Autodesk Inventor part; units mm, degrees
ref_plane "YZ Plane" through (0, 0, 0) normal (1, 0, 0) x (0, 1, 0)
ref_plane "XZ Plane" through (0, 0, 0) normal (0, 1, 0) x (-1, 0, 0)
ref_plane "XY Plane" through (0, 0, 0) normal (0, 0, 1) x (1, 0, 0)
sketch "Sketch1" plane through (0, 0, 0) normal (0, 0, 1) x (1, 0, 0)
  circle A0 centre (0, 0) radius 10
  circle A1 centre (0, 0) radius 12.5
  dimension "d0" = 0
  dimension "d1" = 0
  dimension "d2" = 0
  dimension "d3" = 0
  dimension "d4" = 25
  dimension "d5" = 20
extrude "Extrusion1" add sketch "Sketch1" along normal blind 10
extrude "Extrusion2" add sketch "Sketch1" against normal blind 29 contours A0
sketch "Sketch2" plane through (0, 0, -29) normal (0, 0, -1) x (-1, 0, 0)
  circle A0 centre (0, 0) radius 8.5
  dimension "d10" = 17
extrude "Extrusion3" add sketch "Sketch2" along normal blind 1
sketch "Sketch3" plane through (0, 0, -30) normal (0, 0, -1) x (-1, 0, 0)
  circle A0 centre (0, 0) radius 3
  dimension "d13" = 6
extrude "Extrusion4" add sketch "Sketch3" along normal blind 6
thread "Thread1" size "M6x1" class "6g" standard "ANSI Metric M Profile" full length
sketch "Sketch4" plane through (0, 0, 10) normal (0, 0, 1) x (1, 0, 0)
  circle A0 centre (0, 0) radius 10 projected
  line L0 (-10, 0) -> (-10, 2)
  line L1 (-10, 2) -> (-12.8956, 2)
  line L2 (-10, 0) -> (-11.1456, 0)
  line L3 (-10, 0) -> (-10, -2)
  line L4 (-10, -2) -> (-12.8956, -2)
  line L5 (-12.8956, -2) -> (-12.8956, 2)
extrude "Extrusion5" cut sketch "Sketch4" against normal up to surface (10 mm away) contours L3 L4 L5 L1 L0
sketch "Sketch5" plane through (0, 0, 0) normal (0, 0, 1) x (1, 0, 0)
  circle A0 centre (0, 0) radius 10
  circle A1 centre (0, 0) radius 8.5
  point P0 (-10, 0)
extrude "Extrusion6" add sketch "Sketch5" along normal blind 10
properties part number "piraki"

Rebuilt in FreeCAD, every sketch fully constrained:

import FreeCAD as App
import Part
import Sketcher

V = App.Vector
Q = App.Units.Quantity


def add_polygon(sketch, points):
    """Adds a closed chain of lines whose ends are joined by coincident constraints."""
    first, n = sketch.GeometryCount, len(points)
    for a, b in zip(points, points[1:] + points[:1]):
        sketch.addGeometry(Part.LineSegment(App.Vector(*a, 0), App.Vector(*b, 0)), False)
    for i in range(n):
        sketch.addConstraint(Sketcher.Constraint("Coincident", first + i, 2, first + (i + 1) % n, 1))

doc = App.newDocument("Part")
body = doc.addObject("PartDesign::Body", "Body")
body.AllowCompound = True

# Sketch on XY plane
sketch1 = body.newObject("Sketcher::SketchObject", "Sketch")
sketch1.AttachmentSupport = (doc.getObject("XY_Plane"), [""])
sketch1.MapMode = "FlatFace"
sketch1.addGeometry([
    Part.Circle(V(0, 0, 0), V(0, 0, 1), 12),
    Part.Circle(V(0, 0, 0), V(0, 0, 1), 10),
], False)
sketch1.addConstraint([
    Sketcher.Constraint("Coincident", 0, 3, -1, 1),
    Sketcher.Constraint("Coincident", 1, 3, -1, 1),
    Sketcher.Constraint("Diameter", 0, Q("25 mm")),
    Sketcher.Constraint("Diameter", 1, Q("20 mm")),
])
pad1 = body.newObject("PartDesign::Pad", "Pad")
pad1.Profile = sketch1
pad1.Length = 10

# Sketch on XY plane
sketch2 = body.newObject("Sketcher::SketchObject", "Sketch001")
sketch2.AttachmentSupport = (doc.getObject("XY_Plane"), [""])
sketch2.MapMode = "FlatFace"
sketch2.addGeometry(Part.Circle(V(0, 0, 0), V(0, 0, 1), 10), False)
sketch2.addConstraint([
    Sketcher.Constraint("Coincident", 0, 3, -1, 1),
    Sketcher.Constraint("Diameter", 0, Q("20 mm")),
])
pad2 = body.newObject("PartDesign::Pad", "Pad001")
pad2.Profile = sketch2
pad2.Length = 29
pad2.Reversed = True

# Sketch on XY plane
sketch3 = body.newObject("Sketcher::SketchObject", "Sketch002")
sketch3.AttachmentSupport = (doc.getObject("XY_Plane"), [""])
sketch3.MapMode = "FlatFace"
sketch3.AttachmentOffset = App.Placement(V(0, 0, -29), App.Rotation())
sketch3.addGeometry(Part.Circle(V(0, 0, 0), V(0, 0, 1), 8), False)
sketch3.addConstraint([
    Sketcher.Constraint("Coincident", 0, 3, -1, 1),
    Sketcher.Constraint("Diameter", 0, Q("17 mm")),
])
pad3 = body.newObject("PartDesign::Pad", "Pad002")
pad3.Profile = sketch3
pad3.Length = 1
pad3.Reversed = True

# Sketch on XY plane
sketch4 = body.newObject("Sketcher::SketchObject", "Sketch003")
sketch4.AttachmentSupport = (doc.getObject("XY_Plane"), [""])
sketch4.MapMode = "FlatFace"
sketch4.AttachmentOffset = App.Placement(V(0, 0, -30), App.Rotation())
sketch4.addGeometry(Part.Circle(V(0, 0, 0), V(0, 0, 1), 3), False)
sketch4.addConstraint([
    Sketcher.Constraint("Coincident", 0, 3, -1, 1),
    Sketcher.Constraint("Diameter", 0, Q("6 mm")),
])
pad4 = body.newObject("PartDesign::Pad", "Pad003")
pad4.Profile = sketch4
pad4.Length = 6
pad4.Reversed = True

# Sketch on XY plane
sketch5 = body.newObject("Sketcher::SketchObject", "Sketch004")
sketch5.AttachmentSupport = (doc.getObject("XY_Plane"), [""])
sketch5.MapMode = "FlatFace"
sketch5.AttachmentOffset = App.Placement(V(0, 0, 10), App.Rotation())
add_polygon(sketch5, [(-10, -2), (-10, 2), (-12.9, 2), (-12.9, -2)])  # lines 0-3
sketch5.addConstraint([
    Sketcher.Constraint("Vertical", 0),
    Sketcher.Constraint("Horizontal", 1),
    Sketcher.Constraint("Vertical", 2),
    Sketcher.Constraint("Horizontal", 3),
    Sketcher.Constraint("DistanceY", 0, 1, 0, 2, Q("4 mm")),
    Sketcher.Constraint("DistanceX", 0, 2, -1, 1, Q("10 mm")),
    Sketcher.Constraint("DistanceY", -1, 1, 0, 2, Q("2 mm")),
    Sketcher.Constraint("DistanceX", 1, 2, 1, 1, Q("2.8956 mm")),
])
pocket1 = body.newObject("PartDesign::Pocket", "Pocket")
pocket1.Profile = sketch5
pocket1.Length = 10

# Sketch on XY plane
sketch6 = body.newObject("Sketcher::SketchObject", "Sketch005")
sketch6.AttachmentSupport = (doc.getObject("XY_Plane"), [""])
sketch6.MapMode = "FlatFace"
sketch6.addGeometry([
    Part.Circle(V(0, 0, 0), V(0, 0, 1), 10),
    Part.Circle(V(0, 0, 0), V(0, 0, 1), 8),
], False)
sketch6.addConstraint([
    Sketcher.Constraint("Coincident", 0, 3, -1, 1),
    Sketcher.Constraint("Coincident", 1, 3, -1, 1),
    Sketcher.Constraint("Diameter", 0, Q("20 mm")),
    Sketcher.Constraint("Diameter", 1, Q("17 mm")),
])
pad5 = body.newObject("PartDesign::Pad", "Pad004")
pad5.Profile = sketch6
pad5.Length = 10

doc.recompute()
